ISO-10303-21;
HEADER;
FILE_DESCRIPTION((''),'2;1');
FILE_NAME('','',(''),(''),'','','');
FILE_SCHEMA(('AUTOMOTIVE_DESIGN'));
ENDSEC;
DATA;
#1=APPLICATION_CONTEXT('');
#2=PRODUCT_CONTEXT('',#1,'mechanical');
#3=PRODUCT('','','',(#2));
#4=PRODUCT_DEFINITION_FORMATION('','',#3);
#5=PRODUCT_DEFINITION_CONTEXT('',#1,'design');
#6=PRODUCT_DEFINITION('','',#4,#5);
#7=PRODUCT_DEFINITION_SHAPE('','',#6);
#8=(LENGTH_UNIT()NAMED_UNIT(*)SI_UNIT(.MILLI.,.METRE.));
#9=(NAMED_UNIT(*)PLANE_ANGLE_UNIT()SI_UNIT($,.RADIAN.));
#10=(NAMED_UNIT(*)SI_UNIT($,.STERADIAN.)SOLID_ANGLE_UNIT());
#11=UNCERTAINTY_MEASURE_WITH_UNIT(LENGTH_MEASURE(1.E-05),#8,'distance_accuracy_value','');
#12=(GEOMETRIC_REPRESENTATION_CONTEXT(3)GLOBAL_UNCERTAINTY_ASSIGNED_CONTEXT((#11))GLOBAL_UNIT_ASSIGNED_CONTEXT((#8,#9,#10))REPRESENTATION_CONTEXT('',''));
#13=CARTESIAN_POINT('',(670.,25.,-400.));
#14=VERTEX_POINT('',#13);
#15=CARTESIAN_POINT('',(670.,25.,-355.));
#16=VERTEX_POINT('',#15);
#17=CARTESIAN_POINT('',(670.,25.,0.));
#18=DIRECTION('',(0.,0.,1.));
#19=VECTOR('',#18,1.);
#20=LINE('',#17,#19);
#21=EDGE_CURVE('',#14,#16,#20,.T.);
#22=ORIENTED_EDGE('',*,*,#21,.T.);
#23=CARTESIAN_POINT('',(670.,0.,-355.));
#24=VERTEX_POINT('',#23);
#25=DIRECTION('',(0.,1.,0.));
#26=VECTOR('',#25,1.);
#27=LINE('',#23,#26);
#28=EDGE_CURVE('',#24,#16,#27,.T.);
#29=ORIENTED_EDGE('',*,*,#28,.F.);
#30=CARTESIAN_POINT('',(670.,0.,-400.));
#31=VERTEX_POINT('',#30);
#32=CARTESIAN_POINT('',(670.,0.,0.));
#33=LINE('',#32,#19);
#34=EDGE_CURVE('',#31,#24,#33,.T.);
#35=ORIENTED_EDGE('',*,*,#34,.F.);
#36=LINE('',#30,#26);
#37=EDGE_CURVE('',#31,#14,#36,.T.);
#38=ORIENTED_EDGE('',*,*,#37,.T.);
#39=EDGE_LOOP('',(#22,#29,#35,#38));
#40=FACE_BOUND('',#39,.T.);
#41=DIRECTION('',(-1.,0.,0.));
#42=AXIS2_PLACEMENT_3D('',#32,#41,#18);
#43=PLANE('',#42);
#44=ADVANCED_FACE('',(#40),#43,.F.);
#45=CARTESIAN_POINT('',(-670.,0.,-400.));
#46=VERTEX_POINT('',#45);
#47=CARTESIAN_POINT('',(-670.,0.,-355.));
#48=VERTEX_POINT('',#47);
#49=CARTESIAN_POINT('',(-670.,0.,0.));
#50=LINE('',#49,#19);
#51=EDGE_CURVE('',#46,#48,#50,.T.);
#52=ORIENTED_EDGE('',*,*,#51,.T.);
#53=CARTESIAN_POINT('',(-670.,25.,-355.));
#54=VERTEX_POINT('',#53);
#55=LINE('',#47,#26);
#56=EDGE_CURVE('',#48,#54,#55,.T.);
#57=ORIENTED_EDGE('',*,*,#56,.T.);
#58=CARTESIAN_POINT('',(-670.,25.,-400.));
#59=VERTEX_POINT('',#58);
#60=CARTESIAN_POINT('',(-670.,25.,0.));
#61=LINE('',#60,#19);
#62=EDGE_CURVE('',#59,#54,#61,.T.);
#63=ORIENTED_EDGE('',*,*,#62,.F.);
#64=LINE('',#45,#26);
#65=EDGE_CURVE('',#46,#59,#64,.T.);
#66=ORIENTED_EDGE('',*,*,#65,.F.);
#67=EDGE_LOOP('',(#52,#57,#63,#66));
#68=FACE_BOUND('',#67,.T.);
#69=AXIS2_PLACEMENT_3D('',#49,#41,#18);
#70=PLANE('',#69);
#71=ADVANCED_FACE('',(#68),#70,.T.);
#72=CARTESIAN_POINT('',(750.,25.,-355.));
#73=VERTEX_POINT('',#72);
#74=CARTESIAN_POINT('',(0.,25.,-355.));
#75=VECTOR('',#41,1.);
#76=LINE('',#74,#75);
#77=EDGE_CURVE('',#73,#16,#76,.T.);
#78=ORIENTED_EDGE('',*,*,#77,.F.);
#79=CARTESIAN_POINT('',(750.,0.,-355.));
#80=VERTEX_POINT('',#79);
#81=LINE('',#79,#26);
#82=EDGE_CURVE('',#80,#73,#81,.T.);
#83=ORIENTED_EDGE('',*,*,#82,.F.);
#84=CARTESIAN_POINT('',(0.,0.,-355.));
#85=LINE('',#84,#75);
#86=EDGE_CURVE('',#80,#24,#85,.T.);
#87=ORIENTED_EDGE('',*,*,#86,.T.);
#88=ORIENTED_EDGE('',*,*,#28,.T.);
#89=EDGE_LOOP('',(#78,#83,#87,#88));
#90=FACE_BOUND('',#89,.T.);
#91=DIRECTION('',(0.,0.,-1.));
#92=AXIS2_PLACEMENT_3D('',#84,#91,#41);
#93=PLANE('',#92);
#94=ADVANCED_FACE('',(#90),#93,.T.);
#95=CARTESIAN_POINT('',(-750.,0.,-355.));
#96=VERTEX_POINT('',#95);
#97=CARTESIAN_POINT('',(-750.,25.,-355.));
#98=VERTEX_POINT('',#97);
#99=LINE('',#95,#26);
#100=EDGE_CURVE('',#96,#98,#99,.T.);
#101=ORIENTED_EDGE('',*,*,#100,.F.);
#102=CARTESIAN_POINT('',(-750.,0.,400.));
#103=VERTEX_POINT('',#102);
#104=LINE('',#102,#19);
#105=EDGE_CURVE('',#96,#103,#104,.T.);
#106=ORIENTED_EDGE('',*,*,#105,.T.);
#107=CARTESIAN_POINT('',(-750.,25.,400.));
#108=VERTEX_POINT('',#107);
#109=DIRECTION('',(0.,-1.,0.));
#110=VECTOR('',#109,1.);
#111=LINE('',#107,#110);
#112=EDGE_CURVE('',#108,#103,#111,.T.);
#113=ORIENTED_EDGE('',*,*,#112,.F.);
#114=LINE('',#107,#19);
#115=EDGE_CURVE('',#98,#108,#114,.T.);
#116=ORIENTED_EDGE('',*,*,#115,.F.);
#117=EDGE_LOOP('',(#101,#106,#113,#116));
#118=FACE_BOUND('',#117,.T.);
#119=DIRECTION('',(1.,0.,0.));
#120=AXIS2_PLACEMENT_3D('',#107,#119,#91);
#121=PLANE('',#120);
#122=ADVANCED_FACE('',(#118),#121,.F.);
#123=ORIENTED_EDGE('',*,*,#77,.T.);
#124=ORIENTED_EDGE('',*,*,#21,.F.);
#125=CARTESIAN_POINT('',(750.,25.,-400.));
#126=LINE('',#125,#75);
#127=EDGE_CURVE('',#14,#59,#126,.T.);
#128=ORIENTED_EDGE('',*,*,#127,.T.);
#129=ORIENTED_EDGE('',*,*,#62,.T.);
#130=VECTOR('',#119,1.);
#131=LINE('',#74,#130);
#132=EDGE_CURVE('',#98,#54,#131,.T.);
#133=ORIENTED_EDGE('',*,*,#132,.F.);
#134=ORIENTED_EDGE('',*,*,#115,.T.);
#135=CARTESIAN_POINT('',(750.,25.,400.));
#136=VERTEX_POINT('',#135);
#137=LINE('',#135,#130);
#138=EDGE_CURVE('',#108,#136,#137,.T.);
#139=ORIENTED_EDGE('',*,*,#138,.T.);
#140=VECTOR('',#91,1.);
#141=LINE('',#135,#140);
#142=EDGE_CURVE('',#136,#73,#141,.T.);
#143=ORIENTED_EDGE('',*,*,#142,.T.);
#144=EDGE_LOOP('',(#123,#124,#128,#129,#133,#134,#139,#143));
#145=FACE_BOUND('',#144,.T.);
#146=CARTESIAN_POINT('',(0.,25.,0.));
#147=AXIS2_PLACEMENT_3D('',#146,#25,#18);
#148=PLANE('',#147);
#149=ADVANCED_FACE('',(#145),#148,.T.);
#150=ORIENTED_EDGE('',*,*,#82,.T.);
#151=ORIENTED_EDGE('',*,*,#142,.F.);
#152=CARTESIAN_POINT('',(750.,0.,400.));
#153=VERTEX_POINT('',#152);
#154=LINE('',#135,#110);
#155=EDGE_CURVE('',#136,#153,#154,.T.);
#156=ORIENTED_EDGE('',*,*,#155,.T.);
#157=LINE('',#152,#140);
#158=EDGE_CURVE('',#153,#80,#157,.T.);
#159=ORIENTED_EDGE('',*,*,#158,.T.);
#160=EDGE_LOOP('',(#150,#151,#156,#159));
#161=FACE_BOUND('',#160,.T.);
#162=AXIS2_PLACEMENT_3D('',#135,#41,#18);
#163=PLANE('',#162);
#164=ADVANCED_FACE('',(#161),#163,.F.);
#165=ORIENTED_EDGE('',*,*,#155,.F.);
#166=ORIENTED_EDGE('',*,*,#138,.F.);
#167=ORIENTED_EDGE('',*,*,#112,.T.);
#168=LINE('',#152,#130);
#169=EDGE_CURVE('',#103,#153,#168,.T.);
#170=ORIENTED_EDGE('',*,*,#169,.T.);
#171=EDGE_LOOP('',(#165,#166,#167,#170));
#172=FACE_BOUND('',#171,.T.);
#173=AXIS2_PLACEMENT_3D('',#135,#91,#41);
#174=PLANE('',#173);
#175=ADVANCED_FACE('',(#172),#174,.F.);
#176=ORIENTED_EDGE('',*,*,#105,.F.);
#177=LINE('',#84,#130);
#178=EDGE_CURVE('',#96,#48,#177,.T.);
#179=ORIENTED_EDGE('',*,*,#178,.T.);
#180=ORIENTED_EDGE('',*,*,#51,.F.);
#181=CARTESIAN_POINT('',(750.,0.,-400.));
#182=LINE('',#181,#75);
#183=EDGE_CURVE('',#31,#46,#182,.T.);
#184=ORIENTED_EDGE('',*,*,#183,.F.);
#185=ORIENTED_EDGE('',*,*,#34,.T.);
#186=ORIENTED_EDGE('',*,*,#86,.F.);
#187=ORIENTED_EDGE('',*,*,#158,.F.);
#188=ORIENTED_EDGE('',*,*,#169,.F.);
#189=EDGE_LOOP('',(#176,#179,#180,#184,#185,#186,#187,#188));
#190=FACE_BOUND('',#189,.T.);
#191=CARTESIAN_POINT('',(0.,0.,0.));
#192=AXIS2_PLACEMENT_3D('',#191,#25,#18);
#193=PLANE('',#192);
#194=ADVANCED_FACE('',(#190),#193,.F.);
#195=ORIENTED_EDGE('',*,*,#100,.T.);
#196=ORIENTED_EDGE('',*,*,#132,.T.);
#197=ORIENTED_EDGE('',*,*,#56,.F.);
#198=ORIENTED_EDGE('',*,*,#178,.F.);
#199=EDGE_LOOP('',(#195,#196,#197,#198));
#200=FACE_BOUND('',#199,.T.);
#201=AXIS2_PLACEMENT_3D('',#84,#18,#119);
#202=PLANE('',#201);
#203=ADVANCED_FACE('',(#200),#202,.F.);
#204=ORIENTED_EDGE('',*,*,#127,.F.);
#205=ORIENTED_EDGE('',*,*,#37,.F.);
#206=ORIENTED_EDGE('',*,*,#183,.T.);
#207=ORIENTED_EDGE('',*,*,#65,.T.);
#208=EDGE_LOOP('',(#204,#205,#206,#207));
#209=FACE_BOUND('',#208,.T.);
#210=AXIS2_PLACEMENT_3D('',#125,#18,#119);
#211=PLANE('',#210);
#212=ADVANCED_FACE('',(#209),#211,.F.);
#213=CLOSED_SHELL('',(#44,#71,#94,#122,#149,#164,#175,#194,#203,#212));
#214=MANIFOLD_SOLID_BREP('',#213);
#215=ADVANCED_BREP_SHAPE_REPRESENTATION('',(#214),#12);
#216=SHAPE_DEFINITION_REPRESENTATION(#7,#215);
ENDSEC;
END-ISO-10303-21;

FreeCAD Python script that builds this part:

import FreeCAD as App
import Part
import Sketcher
from FreeCAD import Vector
Q = App.Units.Quantity


def add_polygon(sketch, points):
    """Adds a closed chain of lines whose ends are joined by coincident constraints."""
    first, n = sketch.GeometryCount, len(points)
    for a, b in zip(points, points[1:] + points[:1]):
        sketch.addGeometry(Part.LineSegment(App.Vector(*a, 0), App.Vector(*b, 0)), False)
    for i in range(n):
        sketch.addConstraint(Sketcher.Constraint("Coincident", first + i, 2, first + (i + 1) % n, 1))

doc = App.newDocument("Part")
body = doc.addObject("PartDesign::Body", "Body")

sketch1 = body.newObject("Sketcher::SketchObject", "Sketch")
sketch1.AttachmentSupport = (doc.getObject("XZ_Plane"), [""])
sketch1.MapMode = "FlatFace"
add_polygon(sketch1, [(-750, -400), (-750, 400), (750, 400), (750, -400)])
sketch1.addConstraint([
    Sketcher.Constraint("Vertical", 0),
    Sketcher.Constraint("Horizontal", 1),
    Sketcher.Constraint("Vertical", 2),
    Sketcher.Constraint("Horizontal", 3),
    Sketcher.Constraint("Symmetric", 0, 2, 2, 2, -1, 1),
    Sketcher.Constraint("DistanceX", 1, 1, 1, 2, Q("1500 mm")),
    Sketcher.Constraint("DistanceY", 0, 1, 0, 2, Q("800 mm")),
])
pad1 = body.newObject("PartDesign::Pad", "Pad")
pad1.Profile = sketch1
pad1.Length = 25
pad1.Reversed = True

sketch2 = body.newObject("Sketcher::SketchObject", "Sketch001")
sketch2.AttachmentSupport = (doc.getObject("XZ_Plane"), [""])
sketch2.MapMode = "FlatFace"
sketch2.AttachmentOffset = App.Placement(Vector(0, 0, -25), App.Rotation())
add_polygon(sketch2, [(-750, -400), (-750, -355), (-670, -355), (-670, -400)])
add_polygon(sketch2, [(670, -400), (670, -355), (750, -355), (750, -400)])
sketch2.addConstraint([
    Sketcher.Constraint("Vertical", 0),
    Sketcher.Constraint("Horizontal", 1),
    Sketcher.Constraint("Vertical", 2),
    Sketcher.Constraint("Horizontal", 3),
    Sketcher.Constraint("Vertical", 4),
    Sketcher.Constraint("Horizontal", 5),
    Sketcher.Constraint("Vertical", 6),
    Sketcher.Constraint("Horizontal", 7),
    Sketcher.Constraint("Symmetric", 1, 2, 4, 2, -2),
    Sketcher.Constraint("Symmetric", 3, 2, 6, 2, -2),
    Sketcher.Constraint("DistanceX", 1, 1, 1, 2, Q("80 mm")),
    Sketcher.Constraint("DistanceY", 0, 1, 0, 2, Q("45 mm")),
    Sketcher.Constraint("DistanceX", 0, 2, -1, 1, Q("750 mm")),
    Sketcher.Constraint("DistanceY", 0, 2, -1, 1, Q("355 mm")),
])
pocket1 = body.newObject("PartDesign::Pocket", "Pocket")
pocket1.Profile = sketch2
pocket1.Type = "ThroughAll"
pocket1.Reversed = True

doc.recompute()
